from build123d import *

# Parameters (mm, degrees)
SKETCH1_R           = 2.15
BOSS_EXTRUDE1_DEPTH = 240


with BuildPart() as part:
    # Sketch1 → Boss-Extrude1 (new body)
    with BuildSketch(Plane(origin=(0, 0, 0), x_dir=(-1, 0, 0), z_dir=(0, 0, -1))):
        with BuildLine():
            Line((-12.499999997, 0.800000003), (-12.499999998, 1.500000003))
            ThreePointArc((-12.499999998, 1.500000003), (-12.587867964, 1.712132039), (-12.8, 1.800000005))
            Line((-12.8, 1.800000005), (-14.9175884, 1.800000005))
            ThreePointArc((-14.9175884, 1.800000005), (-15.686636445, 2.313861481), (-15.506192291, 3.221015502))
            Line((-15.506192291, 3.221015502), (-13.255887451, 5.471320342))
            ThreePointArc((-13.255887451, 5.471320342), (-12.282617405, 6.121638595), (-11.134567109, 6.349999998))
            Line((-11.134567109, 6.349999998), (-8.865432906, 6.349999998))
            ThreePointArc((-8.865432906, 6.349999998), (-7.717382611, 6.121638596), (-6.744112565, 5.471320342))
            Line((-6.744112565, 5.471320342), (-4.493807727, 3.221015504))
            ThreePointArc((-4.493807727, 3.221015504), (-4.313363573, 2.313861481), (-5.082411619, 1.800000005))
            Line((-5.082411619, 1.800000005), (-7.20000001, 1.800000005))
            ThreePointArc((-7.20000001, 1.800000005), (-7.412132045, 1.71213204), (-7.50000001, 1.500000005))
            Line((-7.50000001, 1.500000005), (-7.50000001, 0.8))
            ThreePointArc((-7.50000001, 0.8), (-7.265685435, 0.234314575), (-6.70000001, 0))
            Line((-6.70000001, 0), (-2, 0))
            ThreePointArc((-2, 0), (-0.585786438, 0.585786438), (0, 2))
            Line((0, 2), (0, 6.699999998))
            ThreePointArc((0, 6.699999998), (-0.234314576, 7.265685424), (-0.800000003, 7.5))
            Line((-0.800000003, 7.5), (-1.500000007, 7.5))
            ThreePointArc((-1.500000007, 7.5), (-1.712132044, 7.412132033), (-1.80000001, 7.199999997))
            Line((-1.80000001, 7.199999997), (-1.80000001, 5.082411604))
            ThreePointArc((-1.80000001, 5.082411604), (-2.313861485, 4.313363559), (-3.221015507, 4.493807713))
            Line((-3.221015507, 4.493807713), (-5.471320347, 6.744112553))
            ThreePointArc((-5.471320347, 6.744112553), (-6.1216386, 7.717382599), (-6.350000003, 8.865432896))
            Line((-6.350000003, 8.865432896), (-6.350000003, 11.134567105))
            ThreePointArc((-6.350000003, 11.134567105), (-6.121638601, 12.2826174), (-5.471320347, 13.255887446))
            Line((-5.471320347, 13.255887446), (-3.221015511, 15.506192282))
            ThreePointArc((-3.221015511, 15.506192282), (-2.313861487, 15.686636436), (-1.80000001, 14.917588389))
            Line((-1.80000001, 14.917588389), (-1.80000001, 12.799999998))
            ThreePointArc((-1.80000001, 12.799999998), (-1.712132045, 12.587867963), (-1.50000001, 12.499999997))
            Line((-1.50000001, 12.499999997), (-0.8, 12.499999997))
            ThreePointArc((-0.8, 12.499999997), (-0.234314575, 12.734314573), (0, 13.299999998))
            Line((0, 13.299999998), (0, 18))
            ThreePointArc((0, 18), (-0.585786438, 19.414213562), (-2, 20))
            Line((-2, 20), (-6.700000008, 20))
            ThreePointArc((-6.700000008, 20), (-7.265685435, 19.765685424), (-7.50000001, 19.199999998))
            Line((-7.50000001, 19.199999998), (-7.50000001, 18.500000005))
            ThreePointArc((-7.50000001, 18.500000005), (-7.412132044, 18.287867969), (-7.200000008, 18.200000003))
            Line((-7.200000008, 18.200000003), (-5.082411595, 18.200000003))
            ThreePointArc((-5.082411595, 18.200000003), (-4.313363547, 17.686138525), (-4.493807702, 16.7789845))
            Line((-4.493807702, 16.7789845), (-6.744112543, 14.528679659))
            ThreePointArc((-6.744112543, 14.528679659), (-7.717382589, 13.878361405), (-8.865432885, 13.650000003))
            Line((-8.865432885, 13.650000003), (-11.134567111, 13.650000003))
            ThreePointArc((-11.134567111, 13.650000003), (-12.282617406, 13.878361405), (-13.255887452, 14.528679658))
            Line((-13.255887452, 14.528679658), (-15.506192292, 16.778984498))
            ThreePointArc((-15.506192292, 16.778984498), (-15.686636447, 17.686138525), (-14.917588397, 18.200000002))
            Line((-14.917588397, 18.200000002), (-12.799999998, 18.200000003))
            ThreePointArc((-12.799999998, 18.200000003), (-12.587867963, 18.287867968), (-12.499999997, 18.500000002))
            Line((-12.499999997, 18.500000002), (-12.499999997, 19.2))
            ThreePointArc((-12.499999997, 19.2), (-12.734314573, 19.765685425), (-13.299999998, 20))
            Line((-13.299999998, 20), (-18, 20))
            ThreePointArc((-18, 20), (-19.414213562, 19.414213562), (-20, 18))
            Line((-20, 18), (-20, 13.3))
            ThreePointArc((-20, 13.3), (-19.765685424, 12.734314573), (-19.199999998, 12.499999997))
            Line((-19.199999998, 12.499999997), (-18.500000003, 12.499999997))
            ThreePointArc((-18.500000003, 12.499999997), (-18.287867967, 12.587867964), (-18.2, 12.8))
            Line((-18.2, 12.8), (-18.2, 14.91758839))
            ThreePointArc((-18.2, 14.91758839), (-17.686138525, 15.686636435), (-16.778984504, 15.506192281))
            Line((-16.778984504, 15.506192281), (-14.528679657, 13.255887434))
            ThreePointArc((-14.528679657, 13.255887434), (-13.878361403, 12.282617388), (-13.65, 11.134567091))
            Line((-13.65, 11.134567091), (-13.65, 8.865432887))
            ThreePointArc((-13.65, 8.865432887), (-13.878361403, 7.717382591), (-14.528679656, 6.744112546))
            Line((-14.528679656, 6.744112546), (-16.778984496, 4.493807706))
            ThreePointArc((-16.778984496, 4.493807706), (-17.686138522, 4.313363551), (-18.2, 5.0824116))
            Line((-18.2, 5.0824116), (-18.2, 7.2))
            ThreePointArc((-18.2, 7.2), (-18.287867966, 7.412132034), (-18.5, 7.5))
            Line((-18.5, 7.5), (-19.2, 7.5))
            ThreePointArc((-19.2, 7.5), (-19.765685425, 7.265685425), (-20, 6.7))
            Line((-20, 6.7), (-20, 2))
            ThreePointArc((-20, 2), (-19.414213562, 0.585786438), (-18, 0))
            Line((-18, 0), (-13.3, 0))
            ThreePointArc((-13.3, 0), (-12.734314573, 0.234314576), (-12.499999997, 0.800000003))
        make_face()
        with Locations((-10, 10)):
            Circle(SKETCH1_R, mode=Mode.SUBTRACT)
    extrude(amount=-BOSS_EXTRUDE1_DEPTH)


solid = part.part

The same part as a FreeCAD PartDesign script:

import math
import FreeCAD as App
import Part
import Sketcher
Q = App.Units.Quantity

doc = App.newDocument("Part")
body = doc.addObject("PartDesign::Body", "Body")

# Sketch on XY plane
sketch1 = body.newObject("Sketcher::SketchObject", "Sketch")
sketch1.AttachmentSupport = (doc.getObject("XY_Plane"), [""])
sketch1.MapMode = "FlatFace"
sketch1.addGeometry([
    Part.LineSegment(App.Vector(12.5, 0.8, 0), App.Vector(12.5, 1.5, 0)),  # 0
    Part.ArcOfCircle(Part.Circle(App.Vector(12.8, 1.5, 0), App.Vector(0, 0, 1), 0.3), math.radians(90), math.radians(180)),  # 1
    Part.LineSegment(App.Vector(12.8, 1.8, 0), App.Vector(14.92, 1.8, 0)),  # 2
    Part.ArcOfCircle(Part.Circle(App.Vector(14.92, 2.63, 0), App.Vector(0, 0, 1), 0.83), math.radians(-90), math.radians(45)),  # 3
    Part.LineSegment(App.Vector(15.51, 3.22, 0), App.Vector(13.26, 5.47, 0)),  # 4
    Part.ArcOfCircle(Part.Circle(App.Vector(11.13, 3.35, 0), App.Vector(0, 0, 1), 3), math.radians(45), math.radians(90)),  # 5
    Part.LineSegment(App.Vector(11.13, 6.35, 0), App.Vector(8.87, 6.35, 0)),  # 6
    Part.ArcOfCircle(Part.Circle(App.Vector(8.87, 3.35, 0), App.Vector(0, 0, 1), 3), math.radians(90), math.radians(135)),  # 7
    Part.LineSegment(App.Vector(6.74, 5.47, 0), App.Vector(4.49, 3.22, 0)),  # 8
    Part.ArcOfCircle(Part.Circle(App.Vector(5.08, 2.63, 0), App.Vector(0, 0, 1), 0.83), math.radians(135), math.radians(270)),  # 9
    Part.LineSegment(App.Vector(5.08, 1.8, 0), App.Vector(7.2, 1.8, 0)),  # 10
    Part.ArcOfCircle(Part.Circle(App.Vector(7.2, 1.5, 0), App.Vector(0, 0, 1), 0.3), math.radians(0), math.radians(90)),  # 11
    Part.LineSegment(App.Vector(7.5, 1.5, 0), App.Vector(7.5, 0.8, 0)),  # 12
    Part.ArcOfCircle(Part.Circle(App.Vector(6.7, 0.8, 0), App.Vector(0, 0, 1), 0.8), math.radians(-90), math.radians(0)),  # 13
    Part.LineSegment(App.Vector(6.7, 0, 0), App.Vector(2, 0, 0)),  # 14
    Part.ArcOfCircle(Part.Circle(App.Vector(2, 2, 0), App.Vector(0, 0, 1), 2), math.radians(-180), math.radians(-90)),  # 15
    Part.LineSegment(App.Vector(0, 2, 0), App.Vector(0, 6.7, 0)),  # 16
    Part.ArcOfCircle(Part.Circle(App.Vector(0.8, 6.7, 0), App.Vector(0, 0, 1), 0.8), math.radians(90), math.radians(180)),  # 17
    Part.LineSegment(App.Vector(0.8, 7.5, 0), App.Vector(1.5, 7.5, 0)),  # 18
    Part.ArcOfCircle(Part.Circle(App.Vector(1.5, 7.2, 0), App.Vector(0, 0, 1), 0.3), math.radians(0), math.radians(90)),  # 19
    Part.LineSegment(App.Vector(1.8, 7.2, 0), App.Vector(1.8, 5.08, 0)),  # 20
    Part.ArcOfCircle(Part.Circle(App.Vector(2.63, 5.08, 0), App.Vector(0, 0, 1), 0.83), math.radians(180), math.radians(315)),  # 21
    Part.LineSegment(App.Vector(3.22, 4.49, 0), App.Vector(5.47, 6.74, 0)),  # 22
    Part.ArcOfCircle(Part.Circle(App.Vector(3.35, 8.87, 0), App.Vector(0, 0, 1), 3), math.radians(-45), math.radians(0)),  # 23
    Part.LineSegment(App.Vector(6.35, 8.87, 0), App.Vector(6.35, 11.13, 0)),  # 24
    Part.ArcOfCircle(Part.Circle(App.Vector(3.35, 11.13, 0), App.Vector(0, 0, 1), 3), math.radians(0), math.radians(45)),  # 25
    Part.LineSegment(App.Vector(5.47, 13.26, 0), App.Vector(3.22, 15.51, 0)),  # 26
    Part.ArcOfCircle(Part.Circle(App.Vector(2.63, 14.92, 0), App.Vector(0, 0, 1), 0.83), math.radians(45), math.radians(180)),  # 27
    Part.LineSegment(App.Vector(1.8, 14.92, 0), App.Vector(1.8, 12.8, 0)),  # 28
    Part.ArcOfCircle(Part.Circle(App.Vector(1.5, 12.8, 0), App.Vector(0, 0, 1), 0.3), math.radians(-90), math.radians(0)),  # 29
    Part.LineSegment(App.Vector(1.5, 12.5, 0), App.Vector(0.8, 12.5, 0)),  # 30
    Part.ArcOfCircle(Part.Circle(App.Vector(0.8, 13.3, 0), App.Vector(0, 0, 1), 0.8), math.radians(-180), math.radians(-90)),  # 31
    Part.LineSegment(App.Vector(0, 13.3, 0), App.Vector(0, 18, 0)),  # 32
    Part.ArcOfCircle(Part.Circle(App.Vector(2, 18, 0), App.Vector(0, 0, 1), 2), math.radians(90), math.radians(180)),  # 33
    Part.LineSegment(App.Vector(2, 20, 0), App.Vector(6.7, 20, 0)),  # 34
    Part.ArcOfCircle(Part.Circle(App.Vector(6.7, 19.2, 0), App.Vector(0, 0, 1), 0.8), math.radians(0), math.radians(90)),  # 35
    Part.LineSegment(App.Vector(7.5, 19.2, 0), App.Vector(7.5, 18.5, 0)),  # 36
    Part.ArcOfCircle(Part.Circle(App.Vector(7.2, 18.5, 0), App.Vector(0, 0, 1), 0.3), math.radians(-90), math.radians(0)),  # 37
    Part.LineSegment(App.Vector(7.2, 18.2, 0), App.Vector(5.08, 18.2, 0)),  # 38
    Part.ArcOfCircle(Part.Circle(App.Vector(5.08, 17.37, 0), App.Vector(0, 0, 1), 0.83), math.radians(90), math.radians(225)),  # 39
    Part.LineSegment(App.Vector(4.49, 16.78, 0), App.Vector(6.74, 14.53, 0)),  # 40
    Part.ArcOfCircle(Part.Circle(App.Vector(8.87, 16.65, 0), App.Vector(0, 0, 1), 3), math.radians(-135), math.radians(-90)),  # 41
    Part.LineSegment(App.Vector(8.87, 13.65, 0), App.Vector(11.13, 13.65, 0)),  # 42
    Part.ArcOfCircle(Part.Circle(App.Vector(11.13, 16.65, 0), App.Vector(0, 0, 1), 3), math.radians(-90), math.radians(-45)),  # 43
    Part.LineSegment(App.Vector(13.26, 14.53, 0), App.Vector(15.51, 16.78, 0)),  # 44
    Part.ArcOfCircle(Part.Circle(App.Vector(14.92, 17.37, 0), App.Vector(0, 0, 1), 0.83), math.radians(-45), math.radians(90)),  # 45
    Part.LineSegment(App.Vector(14.92, 18.2, 0), App.Vector(12.8, 18.2, 0)),  # 46
    Part.ArcOfCircle(Part.Circle(App.Vector(12.8, 18.5, 0), App.Vector(0, 0, 1), 0.3), math.radians(-180), math.radians(-90)),  # 47
    Part.LineSegment(App.Vector(12.5, 18.5, 0), App.Vector(12.5, 19.2, 0)),  # 48
    Part.ArcOfCircle(Part.Circle(App.Vector(13.3, 19.2, 0), App.Vector(0, 0, 1), 0.8), math.radians(90), math.radians(180)),  # 49
    Part.LineSegment(App.Vector(13.3, 20, 0), App.Vector(18, 20, 0)),  # 50
    Part.ArcOfCircle(Part.Circle(App.Vector(18, 18, 0), App.Vector(0, 0, 1), 2), math.radians(0), math.radians(90)),  # 51
    Part.LineSegment(App.Vector(20, 18, 0), App.Vector(20, 13.3, 0)),  # 52
    Part.ArcOfCircle(Part.Circle(App.Vector(19.2, 13.3, 0), App.Vector(0, 0, 1), 0.8), math.radians(-90), math.radians(0)),  # 53
    Part.LineSegment(App.Vector(19.2, 12.5, 0), App.Vector(18.5, 12.5, 0)),  # 54
    Part.ArcOfCircle(Part.Circle(App.Vector(18.5, 12.8, 0), App.Vector(0, 0, 1), 0.3), math.radians(-180), math.radians(-90)),  # 55
    Part.LineSegment(App.Vector(18.2, 12.8, 0), App.Vector(18.2, 14.92, 0)),  # 56
    Part.ArcOfCircle(Part.Circle(App.Vector(17.37, 14.92, 0), App.Vector(0, 0, 1), 0.83), math.radians(0), math.radians(135)),  # 57
    Part.LineSegment(App.Vector(16.78, 15.51, 0), App.Vector(14.53, 13.26, 0)),  # 58
    Part.ArcOfCircle(Part.Circle(App.Vector(16.65, 11.13, 0), App.Vector(0, 0, 1), 3), math.radians(135), math.radians(180)),  # 59
    Part.LineSegment(App.Vector(13.65, 11.13, 0), App.Vector(13.65, 8.87, 0)),  # 60
    Part.ArcOfCircle(Part.Circle(App.Vector(16.65, 8.87, 0), App.Vector(0, 0, 1), 3), math.radians(-180), math.radians(-135)),  # 61
    Part.LineSegment(App.Vector(14.53, 6.74, 0), App.Vector(16.78, 4.49, 0)),  # 62
    Part.ArcOfCircle(Part.Circle(App.Vector(17.37, 5.08, 0), App.Vector(0, 0, 1), 0.83), math.radians(-135), math.radians(0)),  # 63
    Part.LineSegment(App.Vector(18.2, 5.08, 0), App.Vector(18.2, 7.2, 0)),  # 64
    Part.ArcOfCircle(Part.Circle(App.Vector(18.5, 7.2, 0), App.Vector(0, 0, 1), 0.3), math.radians(90), math.radians(180)),  # 65
    Part.LineSegment(App.Vector(18.5, 7.5, 0), App.Vector(19.2, 7.5, 0)),  # 66
    Part.ArcOfCircle(Part.Circle(App.Vector(19.2, 6.7, 0), App.Vector(0, 0, 1), 0.8), math.radians(0), math.radians(90)),  # 67
    Part.LineSegment(App.Vector(20, 6.7, 0), App.Vector(20, 2, 0)),  # 68
    Part.ArcOfCircle(Part.Circle(App.Vector(18, 2, 0), App.Vector(0, 0, 1), 2), math.radians(-90), math.radians(0)),  # 69
    Part.LineSegment(App.Vector(18, 0, 0), App.Vector(13.3, 0, 0)),  # 70
    Part.ArcOfCircle(Part.Circle(App.Vector(13.3, 0.8, 0), App.Vector(0, 0, 1), 0.8), math.radians(180), math.radians(270)),  # 71
    Part.Circle(App.Vector(10, 10, 0), App.Vector(0, 0, 1), 2.15),  # 72
], False)
sketch1.addConstraint([
    Sketcher.Constraint("Tangent", 0, 2, 1, 2),
    Sketcher.Constraint("Tangent", 1, 1, 2, 1),
    Sketcher.Constraint("Tangent", 2, 2, 3, 1),
    Sketcher.Constraint("Tangent", 3, 2, 4, 1),
    Sketcher.Constraint("Tangent", 4, 2, 5, 1),
    Sketcher.Constraint("Tangent", 5, 2, 6, 1),
    Sketcher.Constraint("Tangent", 6, 2, 7, 1),
    Sketcher.Constraint("Tangent", 7, 2, 8, 1),
    Sketcher.Constraint("Tangent", 8, 2, 9, 1),
    Sketcher.Constraint("Tangent", 9, 2, 10, 1),
    Sketcher.Constraint("Tangent", 10, 2, 11, 2),
    Sketcher.Constraint("Tangent", 11, 1, 12, 1),
    Sketcher.Constraint("Tangent", 12, 2, 13, 2),
    Sketcher.Constraint("Tangent", 13, 1, 14, 1),
    Sketcher.Constraint("Tangent", 14, 2, 15, 2),
    Sketcher.Constraint("Tangent", 15, 1, 16, 1),
    Sketcher.Constraint("Tangent", 16, 2, 17, 2),
    Sketcher.Constraint("Tangent", 17, 1, 18, 1),
    Sketcher.Constraint("Tangent", 18, 2, 19, 2),
    Sketcher.Constraint("Tangent", 19, 1, 20, 1),
    Sketcher.Constraint("Tangent", 20, 2, 21, 1),
    Sketcher.Constraint("Tangent", 21, 2, 22, 1),
    Sketcher.Constraint("Tangent", 22, 2, 23, 1),
    Sketcher.Constraint("Tangent", 23, 2, 24, 1),
    Sketcher.Constraint("Tangent", 24, 2, 25, 1),
    Sketcher.Constraint("Tangent", 25, 2, 26, 1),
    Sketcher.Constraint("Tangent", 26, 2, 27, 1),
    Sketcher.Constraint("Tangent", 27, 2, 28, 1),
    Sketcher.Constraint("Tangent", 28, 2, 29, 2),
    Sketcher.Constraint("Tangent", 29, 1, 30, 1),
    Sketcher.Constraint("Tangent", 30, 2, 31, 2),
    Sketcher.Constraint("Tangent", 31, 1, 32, 1),
    Sketcher.Constraint("Tangent", 32, 2, 33, 2),
    Sketcher.Constraint("Tangent", 33, 1, 34, 1),
    Sketcher.Constraint("Tangent", 34, 2, 35, 2),
    Sketcher.Constraint("Tangent", 35, 1, 36, 1),
    Sketcher.Constraint("Tangent", 36, 2, 37, 2),
    Sketcher.Constraint("Tangent", 37, 1, 38, 1),
    Sketcher.Constraint("Tangent", 38, 2, 39, 1),
    Sketcher.Constraint("Tangent", 39, 2, 40, 1),
    Sketcher.Constraint("Tangent", 40, 2, 41, 1),
    Sketcher.Constraint("Tangent", 41, 2, 42, 1),
    Sketcher.Constraint("Tangent", 42, 2, 43, 1),
    Sketcher.Constraint("Tangent", 43, 2, 44, 1),
    Sketcher.Constraint("Tangent", 44, 2, 45, 1),
    Sketcher.Constraint("Tangent", 45, 2, 46, 1),
    Sketcher.Constraint("Tangent", 46, 2, 47, 2),
    Sketcher.Constraint("Tangent", 47, 1, 48, 1),
    Sketcher.Constraint("Tangent", 48, 2, 49, 2),
    Sketcher.Constraint("Tangent", 49, 1, 50, 1),
    Sketcher.Constraint("Tangent", 50, 2, 51, 2),
    Sketcher.Constraint("Tangent", 51, 1, 52, 1),
    Sketcher.Constraint("Tangent", 52, 2, 53, 2),
    Sketcher.Constraint("Tangent", 53, 1, 54, 1),
    Sketcher.Constraint("Tangent", 54, 2, 55, 2),
    Sketcher.Constraint("Tangent", 55, 1, 56, 1),
    Sketcher.Constraint("Tangent", 56, 2, 57, 1),
    Sketcher.Constraint("Tangent", 57, 2, 58, 1),
    Sketcher.Constraint("Tangent", 58, 2, 59, 1),
    Sketcher.Constraint("Tangent", 59, 2, 60, 1),
    Sketcher.Constraint("Tangent", 60, 2, 61, 1),
    Sketcher.Constraint("Tangent", 61, 2, 62, 1),
    Sketcher.Constraint("Tangent", 62, 2, 63, 1),
    Sketcher.Constraint("Tangent", 63, 2, 64, 1),
    Sketcher.Constraint("Tangent", 64, 2, 65, 2),
    Sketcher.Constraint("Tangent", 65, 1, 66, 1),
    Sketcher.Constraint("Tangent", 66, 2, 67, 2),
    Sketcher.Constraint("Tangent", 67, 1, 68, 1),
    Sketcher.Constraint("Tangent", 68, 2, 69, 2),
    Sketcher.Constraint("Tangent", 69, 1, 70, 1),
    Sketcher.Constraint("Tangent", 70, 2, 71, 2),
    Sketcher.Constraint("Tangent", 71, 1, 0, 1),
    Sketcher.Constraint("Vertical", 0),
    Sketcher.Constraint("Horizontal", 2),
    Sketcher.Constraint("Horizontal", 6),
    Sketcher.Constraint("Horizontal", 10),
    Sketcher.Constraint("Vertical", 12),
    Sketcher.Constraint("Horizontal", 14),
    Sketcher.Constraint("Vertical", 16),
    Sketcher.Constraint("Horizontal", 18),
    Sketcher.Constraint("Vertical", 20),
    Sketcher.Constraint("Vertical", 24),
    Sketcher.Constraint("Vertical", 28),
    Sketcher.Constraint("Horizontal", 30),
    Sketcher.Constraint("Vertical", 32),
    Sketcher.Constraint("Horizontal", 34),
    Sketcher.Constraint("Vertical", 36),
    Sketcher.Constraint("Horizontal", 38),
    Sketcher.Constraint("Horizontal", 42),
    Sketcher.Constraint("Horizontal", 46),
    Sketcher.Constraint("Vertical", 48),
    Sketcher.Constraint("Horizontal", 50),
    Sketcher.Constraint("Vertical", 52),
    Sketcher.Constraint("Horizontal", 54),
    Sketcher.Constraint("Vertical", 56),
    Sketcher.Constraint("Vertical", 60),
    Sketcher.Constraint("Vertical", 64),
    Sketcher.Constraint("Horizontal", 66),
    Sketcher.Constraint("Vertical", 68),
    Sketcher.Constraint("Horizontal", 70),
    Sketcher.Constraint("Equal", 5, 7),
    Sketcher.Constraint("Equal", 3, 9),
    Sketcher.Constraint("Equal", 1, 11),
    Sketcher.Constraint("Equal", 13, 17),
    Sketcher.Constraint("Equal", 11, 19),
    Sketcher.Constraint("Equal", 9, 21),
    Sketcher.Constraint("Equal", 7, 23),
    Sketcher.Constraint("Equal", 23, 25),
    Sketcher.Constraint("Equal", 21, 27),
    Sketcher.Constraint("Equal", 19, 29),
    Sketcher.Constraint("Equal", 17, 31),
    Sketcher.Constraint("Equal", 15, 33),
    Sketcher.Constraint("Equal", 31, 35),
    Sketcher.Constraint("Equal", 29, 37),
    Sketcher.Constraint("Equal", 27, 39),
    Sketcher.Constraint("Equal", 25, 41),
    Sketcher.Constraint("Equal", 41, 43),
    Sketcher.Constraint("Equal", 39, 45),
    Sketcher.Constraint("Equal", 37, 47),
    Sketcher.Constraint("Equal", 35, 49),
    Sketcher.Constraint("Equal", 33, 51),
    Sketcher.Constraint("Equal", 49, 53),
    Sketcher.Constraint("Equal", 47, 55),
    Sketcher.Constraint("Equal", 45, 57),
    Sketcher.Constraint("Equal", 43, 59),
    Sketcher.Constraint("Equal", 59, 61),
    Sketcher.Constraint("Equal", 57, 63),
    Sketcher.Constraint("Equal", 55, 65),
    Sketcher.Constraint("Equal", 53, 67),
    Sketcher.Constraint("Equal", 51, 69),
    Sketcher.Constraint("Equal", 67, 71),
    Sketcher.Constraint("PointOnObject", 13, 1, -1),
    Sketcher.Constraint("PointOnObject", 15, 1, -2),
    Sketcher.Constraint("PointOnObject", 31, 1, -2),
    Sketcher.Constraint("PointOnObject", 69, 1, -1),
    Sketcher.Constraint("Perpendicular", 4, 8),
    Sketcher.Constraint("Parallel", 8, 22),
    Sketcher.Constraint("Perpendicular", 22, 26),
    Sketcher.Constraint("Parallel", 26, 40),
    Sketcher.Constraint("Perpendicular", 40, 44),
    Sketcher.Constraint("Parallel", 44, 58),
    Sketcher.Constraint("Perpendicular", 58, 62),
    Sketcher.Constraint("Horizontal", 3, 3, 9, 3),
    Sketcher.Constraint("Horizontal", 39, 3, 45, 3),
    Sketcher.Constraint("Horizontal", 35, 3, 49, 3),
    Sketcher.Constraint("Horizontal", 31, 3, 53, 3),
    Sketcher.Constraint("Horizontal", 27, 3, 57, 3),
    Sketcher.Constraint("Horizontal", 25, 3, 59, 3),
    Sketcher.Constraint("Horizontal", 23, 3, 61, 3),
    Sketcher.Constraint("Horizontal", 21, 3, 63, 3),
    Sketcher.Constraint("Horizontal", 19, 3, 65, 3),
    Sketcher.Constraint("Horizontal", 4, 2, 7, 2),
    Sketcher.Constraint("Vertical", 21, 3, 27, 3),
    Sketcher.Constraint("Vertical", 13, 3, 35, 3),
    Sketcher.Constraint("Vertical", 9, 3, 39, 3),
    Sketcher.Constraint("Vertical", 7, 3, 41, 3),
    Sketcher.Constraint("Vertical", 5, 3, 43, 3),
    Sketcher.Constraint("Vertical", 1, 3, 47, 3),
    Sketcher.Constraint("Vertical", 53, 3, 67, 3),
    Sketcher.Constraint("Equal", 2, 10),
    Sketcher.Constraint("Equal", 34, 50),
    Sketcher.Constraint("Equal", 30, 54),
    Sketcher.Constraint("Equal", 66, 0),
    Sketcher.Constraint("Equal", 70, 16),
    Sketcher.Constraint("Equal", 46, 20),
    Sketcher.Constraint("Equal", 42, 24),
    Sketcher.Constraint("Equal", 20, 28),
    Sketcher.Constraint("Equal", 16, 32),
    Sketcher.Constraint("Equal", 12, 36),
    Sketcher.Constraint("Equal", 8, 22),
    Sketcher.Constraint("Radius", 5, Q("3 mm")),
    Sketcher.Constraint("Radius", 15, Q("2 mm")),
    Sketcher.Constraint("Diameter", 72, Q("4.3 mm")),
    Sketcher.Constraint("Radius", 1, Q("0.3 mm")),
    Sketcher.Constraint("Radius", 13, Q("0.8 mm")),
    Sketcher.Constraint("DistanceX", 14, 2, 14, 1, Q("4.7 mm")),
    Sketcher.Constraint("DistanceX", 18, 1, 18, 2, Q("0.7 mm")),
    Sketcher.Constraint("DistanceY", -1, 1, 33, 3, Q("18 mm")),
    Sketcher.Constraint("DistanceX", -1, 1, 72, 3, Q("10 mm")),
    Sketcher.Constraint("DistanceY", -1, 1, 72, 3, Q("10 mm")),
    Sketcher.Constraint("DistanceY", -1, 1, 5, 3, Q("3.35 mm")),
    Sketcher.Constraint("Radius", 3, Q("0.832412 mm")),
    Sketcher.Constraint("DistanceX", 2, 1, 2, 2, Q("2.117588 mm")),
])
pad1 = body.newObject("PartDesign::Pad", "Pad")
pad1.Profile = sketch1
pad1.Length = 240

doc.recompute()
